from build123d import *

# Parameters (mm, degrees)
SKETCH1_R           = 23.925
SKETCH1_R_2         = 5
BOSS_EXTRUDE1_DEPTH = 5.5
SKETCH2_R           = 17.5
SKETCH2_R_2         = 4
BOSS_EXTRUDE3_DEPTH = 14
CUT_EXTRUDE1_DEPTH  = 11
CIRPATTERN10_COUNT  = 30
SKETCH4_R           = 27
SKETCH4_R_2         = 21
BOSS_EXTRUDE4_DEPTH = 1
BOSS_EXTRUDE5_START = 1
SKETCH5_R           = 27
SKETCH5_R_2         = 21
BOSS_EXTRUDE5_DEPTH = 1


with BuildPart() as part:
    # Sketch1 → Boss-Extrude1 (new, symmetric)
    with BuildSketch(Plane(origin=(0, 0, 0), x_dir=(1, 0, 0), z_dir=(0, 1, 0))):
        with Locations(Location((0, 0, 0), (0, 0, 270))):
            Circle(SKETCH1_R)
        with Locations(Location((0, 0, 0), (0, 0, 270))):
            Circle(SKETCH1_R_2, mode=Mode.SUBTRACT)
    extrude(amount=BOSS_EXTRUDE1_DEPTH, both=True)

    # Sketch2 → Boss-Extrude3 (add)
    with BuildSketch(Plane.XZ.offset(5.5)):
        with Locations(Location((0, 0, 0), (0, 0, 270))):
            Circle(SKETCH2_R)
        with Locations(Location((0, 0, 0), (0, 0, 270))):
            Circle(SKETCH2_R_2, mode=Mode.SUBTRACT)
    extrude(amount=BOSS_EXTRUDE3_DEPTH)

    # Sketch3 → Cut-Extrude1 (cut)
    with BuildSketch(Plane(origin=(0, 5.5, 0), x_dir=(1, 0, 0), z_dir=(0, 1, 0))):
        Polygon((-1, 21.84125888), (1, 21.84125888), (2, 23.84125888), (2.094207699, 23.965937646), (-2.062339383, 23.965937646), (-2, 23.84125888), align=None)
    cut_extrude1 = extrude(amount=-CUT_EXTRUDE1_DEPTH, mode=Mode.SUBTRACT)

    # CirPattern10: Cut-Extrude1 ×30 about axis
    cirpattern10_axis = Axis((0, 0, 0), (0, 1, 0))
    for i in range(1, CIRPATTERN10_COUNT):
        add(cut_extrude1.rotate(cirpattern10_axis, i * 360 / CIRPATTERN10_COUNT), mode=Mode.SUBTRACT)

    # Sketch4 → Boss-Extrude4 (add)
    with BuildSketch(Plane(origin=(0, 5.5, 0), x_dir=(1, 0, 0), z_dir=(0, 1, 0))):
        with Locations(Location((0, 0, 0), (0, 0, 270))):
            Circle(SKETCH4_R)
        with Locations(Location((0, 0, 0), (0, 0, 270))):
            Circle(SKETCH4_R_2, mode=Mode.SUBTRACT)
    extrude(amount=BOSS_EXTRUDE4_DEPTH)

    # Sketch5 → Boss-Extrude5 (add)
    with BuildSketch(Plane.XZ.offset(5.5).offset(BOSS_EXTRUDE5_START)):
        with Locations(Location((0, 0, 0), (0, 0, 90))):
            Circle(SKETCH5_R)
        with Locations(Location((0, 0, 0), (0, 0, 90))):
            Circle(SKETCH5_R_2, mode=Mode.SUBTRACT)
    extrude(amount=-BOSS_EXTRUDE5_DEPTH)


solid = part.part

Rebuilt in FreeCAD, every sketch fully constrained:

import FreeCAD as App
import Part
import Sketcher

V = App.Vector

doc = App.newDocument("Part")
body = doc.addObject("PartDesign::Body", "Body")

sketch1 = body.newObject("Sketcher::SketchObject", "Sketch")
sketch1.AttachmentSupport = (doc.getObject("XZ_Plane"), [""])
sketch1.MapMode = "FlatFace"
sketch1.addGeometry([
    Part.Circle(V(0, 0, 0), V(0, 0, 1), 24),
    Part.Circle(V(0, 0, 0), V(0, 0, 1), 5),
], False)
sketch1.addConstraint([
    Sketcher.Constraint("Coincident", 0, 3, -1, 1),
    Sketcher.Constraint("Coincident", 1, 3, -1, 1),
    Sketcher.Constraint("Diameter", 1, 10.0),
    Sketcher.Constraint("Diameter", 0, 47.85),
])
pad1 = body.newObject("PartDesign::Pad", "Pad")
pad1.Profile = sketch1
pad1.Length = 11
pad1.Midplane = True

sketch2 = body.newObject("Sketcher::SketchObject", "Sketch001")
sketch2.AttachmentSupport = (doc.getObject("XZ_Plane"), [""])
sketch2.MapMode = "FlatFace"
sketch2.AttachmentOffset = App.Placement(V(0, 0, 5.5), App.Rotation())
sketch2.addGeometry([
    Part.Circle(V(0, 0, 0), V(0, 0, 1), 17.5),
    Part.Circle(V(0, 0, 0), V(0, 0, 1), 4),
], False)
sketch2.addConstraint([
    Sketcher.Constraint("Coincident", 0, 3, -1, 1),
    Sketcher.Constraint("Coincident", 1, 3, -1, 1),
    Sketcher.Constraint("Diameter", 0, 35.0),
    Sketcher.Constraint("Diameter", 1, 8.0),
])
pad2 = body.newObject("PartDesign::Pad", "Pad001")
pad2.Profile = sketch2
pad2.Length = 14

sketch3 = body.newObject("Sketcher::SketchObject", "Sketch002")
sketch3.AttachmentSupport = (doc.getObject("XZ_Plane"), [""])
sketch3.MapMode = "FlatFace"
sketch3.AttachmentOffset = App.Placement(V(0, 0, -5.5), App.Rotation())
sketch3.addGeometry([
    Part.LineSegment(V(-1, -21.84, 0), V(1, -21.84, 0)),
    Part.LineSegment(V(1, -21.84, 0), V(2, -23.84, 0)),
    Part.LineSegment(V(2, -23.84, 0), V(2.09, -23.97, 0)),
    Part.LineSegment(V(2.09, -23.97, 0), V(-2.06, -23.97, 0)),
    Part.LineSegment(V(-2.06, -23.97, 0), V(-1, -21.84, 0)),
], False)
sketch3.addConstraint([
    Sketcher.Constraint("Coincident", 0, 2, 1, 1),
    Sketcher.Constraint("Coincident", 1, 2, 2, 1),
    Sketcher.Constraint("Coincident", 2, 2, 3, 1),
    Sketcher.Constraint("Coincident", 3, 2, 4, 1),
    Sketcher.Constraint("Coincident", 4, 2, 0, 1),
    Sketcher.Constraint("Horizontal", 0),
    Sketcher.Constraint("Horizontal", 3),
    Sketcher.Constraint("DistanceX", 0, 1, 0, 2, 2.0),
    Sketcher.Constraint("DistanceX", -1, 1, 0, 2, 1.0),
    Sketcher.Constraint("DistanceX", -1, 1, 1, 2, 2.0),
    Sketcher.Constraint("DistanceY", 1, 2, 0, 2, 2.0),
    Sketcher.Constraint("Distance", 2, 0.156269),
    Sketcher.Constraint("DistanceX", 3, 2, 3, 1, 4.156547),
    Sketcher.Constraint("DistanceY", 0, 2, -1, 1, 21.841259),
    Sketcher.Constraint("DistanceX", 3, 2, -1, 1, 2.062339),
])
pocket1 = body.newObject("PartDesign::Pocket", "Pocket")
pocket1.Profile = sketch3
pocket1.Length = 11
pocket1.Reversed = True
doc.recompute()

polarpattern = body.newObject("PartDesign::PolarPattern", "PolarPattern")
polarpattern.Originals = [pocket1]
polarpattern.Axis = (doc.getObject("Y_Axis"), [""])
polarpattern.Angle = 360
polarpattern.Occurrences = 30
body.Tip = polarpattern

sketch4 = body.newObject("Sketcher::SketchObject", "Sketch003")
sketch4.AttachmentSupport = (doc.getObject("XZ_Plane"), [""])
sketch4.MapMode = "FlatFace"
sketch4.AttachmentOffset = App.Placement(V(0, 0, -5.5), App.Rotation())
sketch4.addGeometry([
    Part.Circle(V(0, 0, 0), V(0, 0, 1), 27),
    Part.Circle(V(0, 0, 0), V(0, 0, 1), 21),
], False)
sketch4.addConstraint([
    Sketcher.Constraint("Coincident", 0, 3, -1, 1),
    Sketcher.Constraint("Coincident", 1, 3, -1, 1),
    Sketcher.Constraint("Diameter", 0, 54.0),
    Sketcher.Constraint("Diameter", 1, 42.0),
])
pad3 = body.newObject("PartDesign::Pad", "Pad002")
pad3.Profile = sketch4
pad3.Length = 1
pad3.Reversed = True

sketch5 = body.newObject("Sketcher::SketchObject", "Sketch004")
sketch5.AttachmentSupport = (doc.getObject("XZ_Plane"), [""])
sketch5.MapMode = "FlatFace"
sketch5.AttachmentOffset = App.Placement(V(0, 0, 6.5), App.Rotation())
sketch5.addGeometry([
    Part.Circle(V(0, 0, 0), V(0, 0, 1), 27),
    Part.Circle(V(0, 0, 0), V(0, 0, 1), 21),
], False)
sketch5.addConstraint([
    Sketcher.Constraint("Coincident", 0, 3, -1, 1),
    Sketcher.Constraint("Coincident", 1, 3, -1, 1),
    Sketcher.Constraint("Diameter", 0, 54.0),
    Sketcher.Constraint("Diameter", 1, 42.0),
])
pad4 = body.newObject("PartDesign::Pad", "Pad003")
pad4.Profile = sketch5
pad4.Length = 1
pad4.Reversed = True

doc.recompute()
